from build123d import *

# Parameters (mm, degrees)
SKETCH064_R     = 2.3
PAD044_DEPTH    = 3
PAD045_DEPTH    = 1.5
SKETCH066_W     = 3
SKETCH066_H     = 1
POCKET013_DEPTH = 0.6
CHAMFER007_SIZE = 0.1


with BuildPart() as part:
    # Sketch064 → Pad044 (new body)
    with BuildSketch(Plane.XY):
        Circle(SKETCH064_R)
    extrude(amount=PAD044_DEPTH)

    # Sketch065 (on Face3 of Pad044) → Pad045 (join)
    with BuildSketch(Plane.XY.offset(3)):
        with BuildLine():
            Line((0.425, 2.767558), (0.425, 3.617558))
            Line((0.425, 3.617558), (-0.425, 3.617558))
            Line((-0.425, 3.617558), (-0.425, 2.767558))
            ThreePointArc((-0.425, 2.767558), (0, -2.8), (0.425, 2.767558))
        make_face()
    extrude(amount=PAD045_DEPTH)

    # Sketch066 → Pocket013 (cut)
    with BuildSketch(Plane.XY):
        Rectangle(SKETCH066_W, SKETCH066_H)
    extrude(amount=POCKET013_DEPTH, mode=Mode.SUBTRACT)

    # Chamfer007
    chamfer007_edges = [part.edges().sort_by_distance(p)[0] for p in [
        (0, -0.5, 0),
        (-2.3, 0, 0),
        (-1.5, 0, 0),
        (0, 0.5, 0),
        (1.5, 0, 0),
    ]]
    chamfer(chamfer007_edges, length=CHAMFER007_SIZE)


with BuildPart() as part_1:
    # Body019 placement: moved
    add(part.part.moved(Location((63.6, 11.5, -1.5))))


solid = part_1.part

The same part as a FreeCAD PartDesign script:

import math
import FreeCAD as App
import Part
import Sketcher
Q = App.Units.Quantity


def edges_at(feature, points):
    """Names of the edges that pass closest to the given points."""
    edges = feature.Shape.Edges
    near = lambda p: min(range(len(edges)), key=lambda i: edges[i].distToShape(Part.Vertex(*p))[0])
    return sorted({f"Edge{near(p) + 1}" for p in points})


def add_polygon(sketch, points):
    """Adds a closed chain of lines whose ends are joined by coincident constraints."""
    first, n = sketch.GeometryCount, len(points)
    for a, b in zip(points, points[1:] + points[:1]):
        sketch.addGeometry(Part.LineSegment(App.Vector(*a, 0), App.Vector(*b, 0)), False)
    for i in range(n):
        sketch.addConstraint(Sketcher.Constraint("Coincident", first + i, 2, first + (i + 1) % n, 1))

doc = App.newDocument("Part")
body = doc.addObject("PartDesign::Body", "Body")

# Sketch on XY plane
sketch1 = body.newObject("Sketcher::SketchObject", "Sketch")
sketch1.AttachmentSupport = (doc.getObject("XY_Plane"), [""])
sketch1.MapMode = "FlatFace"
sketch1.addGeometry(Part.Circle(App.Vector(0, 0, 0), App.Vector(0, 0, 1), 2.3), False)
sketch1.addConstraint([
    Sketcher.Constraint("Coincident", 0, 3, -1, 1),
    Sketcher.Constraint("Diameter", 0, Q("4.6 mm")),
])
pad1 = body.newObject("PartDesign::Pad", "Pad")
pad1.Profile = sketch1
pad1.Length = 3

# Sketch on XY plane
sketch2 = body.newObject("Sketcher::SketchObject", "Sketch001")
sketch2.AttachmentSupport = (doc.getObject("XY_Plane"), [""])
sketch2.MapMode = "FlatFace"
sketch2.AttachmentOffset = App.Placement(App.Vector(0, 0, 3), App.Rotation())
sketch2.addGeometry([
    Part.LineSegment(App.Vector(0.425, 2.767558, 0), App.Vector(0.425, 3.617558, 0)),
    Part.LineSegment(App.Vector(0.425, 3.617558, 0), App.Vector(-0.425, 3.617558, 0)),
    Part.LineSegment(App.Vector(-0.425, 3.617558, 0), App.Vector(-0.425, 2.767558, 0)),
    Part.ArcOfCircle(Part.Circle(App.Vector(0, 0, 0), App.Vector(0, 0, 1), 2.8), math.radians(98.730425), math.radians(441.269575)),
], False)
sketch2.addConstraint([
    Sketcher.Constraint("Coincident", 0, 2, 1, 1),
    Sketcher.Constraint("Coincident", 1, 2, 2, 1),
    Sketcher.Constraint("Coincident", 2, 2, 3, 1),
    Sketcher.Constraint("Coincident", 3, 2, 0, 1),
    Sketcher.Constraint("Vertical", 0),
    Sketcher.Constraint("Horizontal", 1),
    Sketcher.Constraint("Vertical", 2),
    Sketcher.Constraint("Coincident", 3, 3, -1, 1),
    Sketcher.Constraint("Horizontal", 2, 2, 3, 2),
    Sketcher.Constraint("Equal", 1, 0),
    Sketcher.Constraint("Radius", 3, Q("2.8 mm")),
    Sketcher.Constraint("DistanceX", 1, 2, 1, 1, Q("0.85 mm")),
])
pad2 = body.newObject("PartDesign::Pad", "Pad001")
pad2.Profile = sketch2
pad2.Length = 1.5

# Sketch on XY plane
sketch3 = body.newObject("Sketcher::SketchObject", "Sketch002")
sketch3.AttachmentSupport = (doc.getObject("XY_Plane"), [""])
sketch3.MapMode = "FlatFace"
add_polygon(sketch3, [(-1.5, 0.5), (-1.5, -0.5), (1.5, -0.5), (1.5, 0.5)])  # lines 0-3
sketch3.addConstraint([
    Sketcher.Constraint("Vertical", 0),
    Sketcher.Constraint("Horizontal", 1),
    Sketcher.Constraint("Vertical", 2),
    Sketcher.Constraint("Horizontal", 3),
    Sketcher.Constraint("Symmetric", 0, 2, 2, 2, -1, 1),
    Sketcher.Constraint("DistanceX", 1, 1, 1, 2, Q("3 mm")),
    Sketcher.Constraint("DistanceY", 0, 2, 0, 1, Q("1 mm")),
])
pocket1 = body.newObject("PartDesign::Pocket", "Pocket")
pocket1.Profile = sketch3
pocket1.Length = 0.6
pocket1.Reversed = True
doc.recompute()

chamfer = body.newObject("PartDesign::Chamfer", "Chamfer")
chamfer.Base = (pocket1, edges_at(pocket1, [
    (0, -0.5, 0),
    (-2.3, 0, 0),
    (-1.5, 0, 0),
    (0, 0.5, 0),
    (1.5, 0, 0),
]))
chamfer.Size = 0.1
body2 = doc.addObject("PartDesign::Body", "Body001")
doc.recompute()

body.Placement = App.Placement(App.Vector(63.6, 11.5, -1.5), App.Rotation(App.Vector(0, 0, 1), 0))
boolean = body2.newObject("PartDesign::Boolean", "Boolean")
boolean.Type = "Fuse"
boolean.addObjects([body])

doc.recompute()
